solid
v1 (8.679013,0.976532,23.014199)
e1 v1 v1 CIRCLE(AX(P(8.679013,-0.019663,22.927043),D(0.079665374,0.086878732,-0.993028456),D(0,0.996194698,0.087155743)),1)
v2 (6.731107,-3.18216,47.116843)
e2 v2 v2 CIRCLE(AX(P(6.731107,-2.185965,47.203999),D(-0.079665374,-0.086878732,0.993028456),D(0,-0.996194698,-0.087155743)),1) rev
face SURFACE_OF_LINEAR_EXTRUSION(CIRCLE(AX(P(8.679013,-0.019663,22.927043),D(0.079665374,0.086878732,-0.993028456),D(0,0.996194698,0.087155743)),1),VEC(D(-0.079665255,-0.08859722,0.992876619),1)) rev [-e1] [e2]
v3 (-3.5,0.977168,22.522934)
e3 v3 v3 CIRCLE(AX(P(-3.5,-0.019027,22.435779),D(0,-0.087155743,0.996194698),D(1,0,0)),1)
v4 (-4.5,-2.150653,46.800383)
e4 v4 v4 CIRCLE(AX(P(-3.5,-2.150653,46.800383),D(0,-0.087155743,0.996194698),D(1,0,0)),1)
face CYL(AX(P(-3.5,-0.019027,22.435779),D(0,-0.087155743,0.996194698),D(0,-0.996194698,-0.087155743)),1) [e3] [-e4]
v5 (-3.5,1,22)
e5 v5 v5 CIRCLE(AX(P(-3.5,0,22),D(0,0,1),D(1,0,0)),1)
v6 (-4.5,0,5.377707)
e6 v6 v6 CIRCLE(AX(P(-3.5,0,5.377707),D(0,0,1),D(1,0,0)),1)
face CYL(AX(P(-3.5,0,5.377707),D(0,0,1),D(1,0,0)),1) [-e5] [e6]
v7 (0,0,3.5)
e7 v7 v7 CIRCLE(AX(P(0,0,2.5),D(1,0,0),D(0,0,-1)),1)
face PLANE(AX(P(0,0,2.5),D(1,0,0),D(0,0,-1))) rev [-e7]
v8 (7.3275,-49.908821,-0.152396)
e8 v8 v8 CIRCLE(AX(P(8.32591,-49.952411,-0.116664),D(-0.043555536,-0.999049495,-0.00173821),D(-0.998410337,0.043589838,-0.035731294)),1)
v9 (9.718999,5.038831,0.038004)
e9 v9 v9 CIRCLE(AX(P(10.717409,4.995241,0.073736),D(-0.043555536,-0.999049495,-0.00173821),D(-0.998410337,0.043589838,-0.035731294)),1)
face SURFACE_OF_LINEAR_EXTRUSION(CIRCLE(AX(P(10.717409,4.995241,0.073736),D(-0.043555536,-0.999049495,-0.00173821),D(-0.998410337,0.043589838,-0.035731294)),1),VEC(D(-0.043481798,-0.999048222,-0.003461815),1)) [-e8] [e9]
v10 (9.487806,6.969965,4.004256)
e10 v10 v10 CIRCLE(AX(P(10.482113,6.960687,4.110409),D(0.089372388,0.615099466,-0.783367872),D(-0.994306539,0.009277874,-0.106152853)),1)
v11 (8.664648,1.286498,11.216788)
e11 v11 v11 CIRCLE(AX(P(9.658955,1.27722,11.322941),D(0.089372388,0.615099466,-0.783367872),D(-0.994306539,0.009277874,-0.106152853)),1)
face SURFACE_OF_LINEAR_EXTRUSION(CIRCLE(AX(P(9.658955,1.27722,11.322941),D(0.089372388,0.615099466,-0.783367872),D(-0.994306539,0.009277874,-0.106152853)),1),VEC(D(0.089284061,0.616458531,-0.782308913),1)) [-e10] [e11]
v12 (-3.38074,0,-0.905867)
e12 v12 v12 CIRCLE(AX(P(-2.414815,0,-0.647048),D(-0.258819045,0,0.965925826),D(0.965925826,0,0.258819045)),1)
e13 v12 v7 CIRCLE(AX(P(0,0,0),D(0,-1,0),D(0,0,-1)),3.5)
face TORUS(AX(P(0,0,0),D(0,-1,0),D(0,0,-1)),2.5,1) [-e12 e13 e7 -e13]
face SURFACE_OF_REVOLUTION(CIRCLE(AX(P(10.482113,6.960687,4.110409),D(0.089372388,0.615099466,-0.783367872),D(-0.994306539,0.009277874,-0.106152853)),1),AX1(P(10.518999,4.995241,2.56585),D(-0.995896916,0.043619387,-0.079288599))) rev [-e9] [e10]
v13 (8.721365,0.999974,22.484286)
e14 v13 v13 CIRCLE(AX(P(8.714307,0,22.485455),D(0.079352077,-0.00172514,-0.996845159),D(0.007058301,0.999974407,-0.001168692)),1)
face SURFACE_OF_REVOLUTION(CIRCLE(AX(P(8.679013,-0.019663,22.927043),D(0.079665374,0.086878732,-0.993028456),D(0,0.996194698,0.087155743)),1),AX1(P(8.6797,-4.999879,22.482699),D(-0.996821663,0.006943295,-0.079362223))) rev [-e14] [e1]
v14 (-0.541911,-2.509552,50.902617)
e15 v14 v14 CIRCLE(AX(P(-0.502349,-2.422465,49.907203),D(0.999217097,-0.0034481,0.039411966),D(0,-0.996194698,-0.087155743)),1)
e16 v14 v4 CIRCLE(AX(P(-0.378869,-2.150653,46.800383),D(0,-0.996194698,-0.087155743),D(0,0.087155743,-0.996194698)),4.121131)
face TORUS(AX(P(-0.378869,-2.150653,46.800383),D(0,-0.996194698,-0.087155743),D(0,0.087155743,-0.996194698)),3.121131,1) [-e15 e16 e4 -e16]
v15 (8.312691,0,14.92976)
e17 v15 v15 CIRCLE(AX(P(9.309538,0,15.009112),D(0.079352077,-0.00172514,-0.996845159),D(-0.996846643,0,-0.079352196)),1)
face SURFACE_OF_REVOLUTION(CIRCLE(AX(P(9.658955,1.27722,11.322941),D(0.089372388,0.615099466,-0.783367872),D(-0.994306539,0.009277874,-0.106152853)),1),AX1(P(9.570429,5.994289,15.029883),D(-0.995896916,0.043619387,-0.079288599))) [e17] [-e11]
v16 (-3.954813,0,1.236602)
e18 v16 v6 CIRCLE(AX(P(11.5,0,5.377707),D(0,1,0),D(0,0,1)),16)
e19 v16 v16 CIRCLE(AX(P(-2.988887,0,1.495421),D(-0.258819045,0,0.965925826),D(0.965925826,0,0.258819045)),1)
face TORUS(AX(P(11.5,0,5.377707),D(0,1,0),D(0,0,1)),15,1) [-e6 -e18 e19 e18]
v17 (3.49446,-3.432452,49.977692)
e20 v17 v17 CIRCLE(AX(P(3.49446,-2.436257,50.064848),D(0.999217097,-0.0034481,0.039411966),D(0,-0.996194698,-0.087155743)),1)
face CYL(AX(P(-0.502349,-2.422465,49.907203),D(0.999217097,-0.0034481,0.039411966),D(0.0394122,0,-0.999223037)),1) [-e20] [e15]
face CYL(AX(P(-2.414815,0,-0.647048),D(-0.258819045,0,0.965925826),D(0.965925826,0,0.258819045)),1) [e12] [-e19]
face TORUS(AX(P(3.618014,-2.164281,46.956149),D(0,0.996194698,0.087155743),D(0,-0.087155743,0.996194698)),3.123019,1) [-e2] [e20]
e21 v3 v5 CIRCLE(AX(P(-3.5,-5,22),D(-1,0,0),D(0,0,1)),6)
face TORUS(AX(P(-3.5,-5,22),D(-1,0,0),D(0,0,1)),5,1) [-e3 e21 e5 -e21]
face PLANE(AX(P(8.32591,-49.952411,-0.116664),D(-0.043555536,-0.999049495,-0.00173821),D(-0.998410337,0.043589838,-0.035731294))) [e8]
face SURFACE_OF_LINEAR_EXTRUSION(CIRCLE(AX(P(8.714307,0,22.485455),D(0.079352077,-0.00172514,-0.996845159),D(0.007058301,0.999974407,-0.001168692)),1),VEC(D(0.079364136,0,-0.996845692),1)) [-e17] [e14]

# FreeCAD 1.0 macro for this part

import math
import FreeCAD as App
import Part
import Sketcher
from FreeCAD import Vector
Q = App.Units.Quantity

doc = App.newDocument("Part")
body = doc.addObject("PartDesign::Body", "Body")

# Sketch on YZ plane
sketch1 = doc.addObject("Sketcher::SketchObject", "Sketch")
body.addObject(sketch1)
sketch1.AttachmentSupport = (doc.YZ_Plane, [""])
sketch1.MapMode = "FlatFace"
sketch1.addGeometry(Part.Circle(Vector(0, 2.5, 0), Vector(0, 0, 1), 1), False)
sketch1.addConstraint(Sketcher.Constraint("PointOnObject", 0, 3, -2))
sketch1.addConstraint(Sketcher.Constraint("Diameter", 0, Q("2 mm")))
sketch1.addConstraint(Sketcher.Constraint("DistanceY", -1, 1, 0, 3, Q("2.5 mm")))

# Sketch on XZ plane
sketch2 = doc.addObject("Sketcher::SketchObject", "Sketch001")
body.addObject(sketch2)
sketch2.AttachmentSupport = (doc.XZ_Plane, [""])
sketch2.MapMode = "FlatFace"
sketch2.addGeometry(Part.LineSegment(Vector(-3.5, 22, 0), Vector(-3.5, 5.4, 0)), False)
sketch2.addGeometry(Part.ArcOfCircle(Part.Circle(Vector(11.5, 5.4, 0), Vector(0, 0, 1), 15), math.radians(180), math.radians(195)), False)
sketch2.addGeometry(Part.LineSegment(Vector(-3, 1.5, 0), Vector(-2.4, -0.6, 0)), False)
sketch2.addGeometry(Part.ArcOfCircle(Part.Circle(Vector(0, 0, 0), Vector(0, 0, 1), 2.5), math.radians(-165), math.radians(90)), False)
sketch2.addConstraint(Sketcher.Constraint("Tangent", 0, 2, 1, 1))
sketch2.addConstraint(Sketcher.Constraint("Tangent", 1, 2, 2, 1))
sketch2.addConstraint(Sketcher.Constraint("Tangent", 2, 2, 3, 1))
sketch2.addConstraint(Sketcher.Constraint("Vertical", 0))
sketch2.addConstraint(Sketcher.Constraint("Coincident", 3, 3, -1, 1))
sketch2.addConstraint(Sketcher.Constraint("PointOnObject", 3, 2, -2))
sketch2.addConstraint(Sketcher.Constraint("Radius", 1, Q("15 mm")))
sketch2.addConstraint(Sketcher.Constraint("Radius", 3, Q("2.5 mm")))
sketch2.addConstraint(Sketcher.Constraint("Angle", 2, Q("-75 deg")))
sketch2.addConstraint(Sketcher.Constraint("DistanceY", -1, 1, 0, 1, Q("22 mm")))
sketch2.addConstraint(Sketcher.Constraint("DistanceX", -1, 1, 1, 3, Q("11.5 mm")))
doc.recompute()

additivepipe = doc.addObject("PartDesign::AdditivePipe", "AdditivePipe")
body.addObject(additivepipe)
additivepipe.Profile = sketch1
additivepipe.Spine = (sketch2, ["Edge1", "Edge2", "Edge3", "Edge4"])

# Sketch on XY plane
sketch3 = doc.addObject("Sketcher::SketchObject", "Sketch002")
body.addObject(sketch3)
sketch3.AttachmentSupport = (doc.XY_Plane, [""])
sketch3.MapMode = "FlatFace"
sketch3.AttachmentOffset = App.Placement(Vector(0, 0, 22), App.Rotation())
sketch3.addGeometry(Part.Circle(Vector(-3.5, 0, 0), Vector(0, 0, 1), 1), False)
sketch3.addConstraint(Sketcher.Constraint("PointOnObject", 0, 3, -1))
sketch3.addConstraint(Sketcher.Constraint("Diameter", 0, Q("2 mm")))
sketch3.addConstraint(Sketcher.Constraint("DistanceX", 0, 3, -1, 1, Q("3.5 mm")))

# Sketch on YZ plane
sketch4 = doc.addObject("Sketcher::SketchObject", "Sketch003")
body.addObject(sketch4)
sketch4.AttachmentSupport = (doc.YZ_Plane, [""])
sketch4.MapMode = "FlatFace"
sketch4.AttachmentOffset = App.Placement(Vector(0, 0, -3.5), App.Rotation())
sketch4.addGeometry(Part.LineSegment(Vector(-2.15, 46.8, 0), Vector(-0.02, 22.44, 0)), False)
sketch4.addGeometry(Part.ArcOfCircle(Part.Circle(Vector(-5, 22, 0), Vector(0, 0, 1), 5), math.radians(0), math.radians(5)), False)
sketch4.addConstraint(Sketcher.Constraint("Tangent", 0, 2, 1, 2))
sketch4.addConstraint(Sketcher.Constraint("PointOnObject", 1, 1, -2))
sketch4.addConstraint(Sketcher.Constraint("Radius", 1, Q("5 mm")))
sketch4.addConstraint(Sketcher.Constraint("Angle", 0, Q("-85 deg")))
sketch4.addConstraint(Sketcher.Constraint("DistanceY", -1, 1, 1, 3, Q("22 mm")))
sketch4.addConstraint(Sketcher.Constraint("DistanceY", -1, 1, 1, 1, Q("22 mm")))
sketch4.addConstraint(Sketcher.Constraint("Distance", 0, Q("24.457673 mm")))
doc.recompute()

additivepipe2 = doc.addObject("PartDesign::AdditivePipe", "AdditivePipe001")
body.addObject(additivepipe2)
additivepipe2.Profile = sketch3
additivepipe2.Spine = (sketch4, ["Edge1", "Edge2"])

# Sketch on an angled plane
sketch5 = doc.addObject("Sketcher::SketchObject", "Sketch004")
body.addObject(sketch5)
sketch5.Placement = App.Placement(Vector(0, -4.079737, 46.63161), App.Rotation(Vector(1, 0, 0), Vector(0, 0.996194698, 0.087155743), Vector(0, -0.087155743, 0.996194698), "ZXY"))
sketch5.addGeometry(Part.Circle(Vector(-3.5, 1.9, 0), Vector(0, 0, 1), 1), False)
sketch5.addConstraint(Sketcher.Constraint("Diameter", 0, Q("2 mm")))
sketch5.addConstraint(Sketcher.Constraint("DistanceX", 0, 3, -1, 1, Q("3.5 mm")))
sketch5.addConstraint(Sketcher.Constraint("DistanceY", -1, 1, 0, 3, Q("1.936453 mm")))

# Sketch on an angled plane
sketch6 = doc.addObject("Sketcher::SketchObject", "Sketch005")
body.addObject(sketch6)
sketch6.Placement = App.Placement(Vector(0, 1.929084, 0.168773), App.Rotation(Vector(0, -0.087155743, 0.996194698), Vector(1, 0, 0), Vector(0, 0.996194698, 0.087155743), "ZXY"))
sketch6.addGeometry(Part.ArcOfCircle(Part.Circle(Vector(46.8, -0.4, 0), Vector(0, 0, 1), 3.1), math.radians(-90), math.radians(-2)), False)
sketch6.addGeometry(Part.LineSegment(Vector(49.9, -0.5, 0), Vector(50.1, 3.5, 0)), False)
sketch6.addGeometry(Part.ArcOfCircle(Part.Circle(Vector(47, 3.6, 0), Vector(0, 0, 1), 3.1), math.radians(-2), math.radians(85)), False)
sketch6.addConstraint(Sketcher.Constraint("Tangent", 0, 2, 1, 1))
sketch6.addConstraint(Sketcher.Constraint("Tangent", 1, 2, 2, 1))
sketch6.addConstraint(Sketcher.Constraint("DistanceY", 0, 1, -1, 1, Q("3.5 mm")))
sketch6.addConstraint(Sketcher.Constraint("Radius", 0, Q("3.121131 mm")))
sketch6.addConstraint(Sketcher.Constraint("Radius", 2, Q("3.123019 mm")))
sketch6.addConstraint(Sketcher.Constraint("Distance", 1, Q("3.99994 mm")))
sketch6.addConstraint(Sketcher.Constraint("DistanceY", 0, 2, -1, 1, Q("0.502349 mm")))
sketch6.addConstraint(Sketcher.Constraint("DistanceX", -1, 1, 1, 2, Q("50.08667 mm")))
sketch6.addConstraint(Sketcher.Constraint("DistanceX", 0, 1, 2, 3, Q("0.156361 mm")))
sketch6.addConstraint(Sketcher.Constraint("DistanceX", 2, 2, 0, 2, Q("2.71353 mm")))
doc.recompute()

additivepipe3 = doc.addObject("PartDesign::AdditivePipe", "AdditivePipe002")
body.addObject(additivepipe3)
additivepipe3.Profile = sketch5
additivepipe3.Spine = (sketch6, ["Edge1", "Edge2", "Edge3"])

# Sketch on an angled plane
sketch7 = doc.addObject("Sketcher::SketchObject", "Sketch006")
body.addObject(sketch7)
sketch7.Placement = App.Placement(Vector(-3.706718, -4.042345, 46.204216), App.Rotation(Vector(-0.996802687, 0.013089991, -0.078822935), Vector(0.006150697, 0.996132892, 0.087643773), Vector(0.079665374, 0.086878732, -0.993028456), "ZXY"))
sketch7.addGeometry(Part.Circle(Vector(-10.5, 2, 0), Vector(0, 0, 1), 1), False)
sketch7.addConstraint(Sketcher.Constraint("Diameter", 0, Q("2 mm")))
sketch7.addConstraint(Sketcher.Constraint("DistanceX", 0, 3, -1, 1, Q("10.458958 mm")))
sketch7.addConstraint(Sketcher.Constraint("DistanceY", -1, 1, 0, 3, Q("2.001026 mm")))

# Sketch on an angled plane
sketch8 = doc.addObject("Sketcher::SketchObject", "Sketch007")
body.addObject(sketch8)
sketch8.Placement = App.Placement(Vector(10.437825, -0.072704, 0.83101), App.Rotation(Vector(-0.079364136, 0, 0.996845692), Vector(0.006921394, 0.999975895, 0.000551049), Vector(-0.996821663, 0.006943295, -0.079362223), "ZXY"))
sketch8.addGeometry(Part.LineSegment(Vector(46.52, -2.11, 0), Vector(22.17, 0.05, 0)), False)
sketch8.addGeometry(Part.ArcOfCircle(Part.Circle(Vector(21.72, -4.93, 0), Vector(0, 0, 1), 5), math.radians(84.92), math.radians(90)), False)
sketch8.addGeometry(Part.LineSegment(Vector(21.72, 0.07, 0), Vector(14.22, 0.07, 0)), False)
sketch8.addConstraint(Sketcher.Constraint("Tangent", 0, 2, 1, 1))
sketch8.addConstraint(Sketcher.Constraint("Tangent", 1, 2, 2, 1))
sketch8.addConstraint(Sketcher.Constraint("Horizontal", 2))
sketch8.addConstraint(Sketcher.Constraint("Radius", 1, Q("4.999999 mm")))
sketch8.addConstraint(Sketcher.Constraint("DistanceX", 2, 2, 2, 1, Q("7.5 mm")))
sketch8.addConstraint(Sketcher.Constraint("Distance", 0, Q("24.45113 mm")))
sketch8.addConstraint(Sketcher.Constraint("DistanceY", 0, 1, -1, 1, Q("2.113312 mm")))
sketch8.addConstraint(Sketcher.Constraint("DistanceX", -1, 1, 0, 2, Q("22.165922 mm")))
sketch8.addConstraint(Sketcher.Constraint("DistanceX", 1, 3, 0, 1, Q("24.797969 mm")))
doc.recompute()

additivepipe4 = doc.addObject("PartDesign::AdditivePipe", "AdditivePipe003")
body.addObject(additivepipe4)
additivepipe4.Profile = sketch7
additivepipe4.Spine = (sketch8, ["Edge1", "Edge2", "Edge3"])

# Sketch on an angled plane
sketch9 = doc.addObject("Sketcher::SketchObject", "Sketch008")
body.addObject(sketch9)
sketch9.Placement = App.Placement(Vector(-1.128627, 0.024537, 14.178158), App.Rotation(Vector(-0.996843953, -0.002464328, -0.079347716), Vector(-0.002319668, 0.999995475, -0.001915245), Vector(0.079352077, -0.00172514, -0.996845159), "ZXY"))
sketch9.addGeometry(Part.Circle(Vector(-10.5, -0.1, 0), Vector(0, 0, 1), 1), False)
sketch9.addConstraint(Sketcher.Constraint("Diameter", 0, Q("2 mm")))
sketch9.addConstraint(Sketcher.Constraint("DistanceY", 0, 3, -1, 1, Q("0.050341 mm")))
sketch9.addConstraint(Sketcher.Constraint("DistanceX", 0, 3, -1, 1, Q("10.471095 mm")))

# Sketch on an angled plane
sketch10 = doc.addObject("Sketcher::SketchObject", "Sketch009")
body.addObject(sketch10)
sketch10.Placement = App.Placement(Vector(10.418468, -0.456319, 0.829469), App.Rotation(Vector(-0.079364136, 0, 0.996845692), Vector(0.043481798, 0.999048222, 0.003461815), Vector(-0.995896916, 0.043619387, -0.079288599), "ZXY"))
sketch10.addGeometry(Part.LineSegment(Vector(-0.8, -49.5, 0), Vector(-0.8, 5.5, 0)), False)
sketch10.addGeometry(Part.ArcOfCircle(Part.Circle(Vector(1.7, 5.5, 0), Vector(0, 0, 1), 2.5), math.radians(52), math.radians(180)), False)
sketch10.addGeometry(Part.LineSegment(Vector(3.3, 7.4, 0), Vector(10.5, 1.7, 0)), False)
sketch10.addGeometry(Part.ArcOfCircle(Part.Circle(Vector(14.2, 6.5, 0), Vector(0, 0, 1), 6), math.radians(-128), math.radians(-90)), False)
sketch10.addConstraint(Sketcher.Constraint("Tangent", 0, 2, 1, 2))
sketch10.addConstraint(Sketcher.Constraint("Tangent", 1, 1, 2, 1))
sketch10.addConstraint(Sketcher.Constraint("Tangent", 2, 2, 3, 1))
sketch10.addConstraint(Sketcher.Constraint("Vertical", 0))
sketch10.addConstraint(Sketcher.Constraint("Radius", 3, Q("6 mm")))
sketch10.addConstraint(Sketcher.Constraint("Radius", 1, Q("2.5 mm")))
sketch10.addConstraint(Sketcher.Constraint("DistanceY", 0, 1, 0, 2, Q("55 mm")))
sketch10.addConstraint(Sketcher.Constraint("DistanceY", 1, 3, 3, 3, Q("1 mm")))
sketch10.addConstraint(Sketcher.Constraint("DistanceX", 0, 1, 3, 3, Q("15 mm")))
sketch10.addConstraint(Sketcher.Constraint("DistanceX", 0, 2, 3, 2, Q("15 mm")))
sketch10.addConstraint(Sketcher.Constraint("DistanceX", -1, 1, 1, 1, Q("3.26554 mm")))
sketch10.addConstraint(Sketcher.Constraint("DistanceY", -1, 1, 2, 2, Q("1.735191 mm")))
doc.recompute()

additivepipe5 = doc.addObject("PartDesign::AdditivePipe", "AdditivePipe004")
body.addObject(additivepipe5)
additivepipe5.Profile = sketch9
additivepipe5.Spine = (sketch10, ["Edge1", "Edge2", "Edge3", "Edge4"])

doc.recompute()
